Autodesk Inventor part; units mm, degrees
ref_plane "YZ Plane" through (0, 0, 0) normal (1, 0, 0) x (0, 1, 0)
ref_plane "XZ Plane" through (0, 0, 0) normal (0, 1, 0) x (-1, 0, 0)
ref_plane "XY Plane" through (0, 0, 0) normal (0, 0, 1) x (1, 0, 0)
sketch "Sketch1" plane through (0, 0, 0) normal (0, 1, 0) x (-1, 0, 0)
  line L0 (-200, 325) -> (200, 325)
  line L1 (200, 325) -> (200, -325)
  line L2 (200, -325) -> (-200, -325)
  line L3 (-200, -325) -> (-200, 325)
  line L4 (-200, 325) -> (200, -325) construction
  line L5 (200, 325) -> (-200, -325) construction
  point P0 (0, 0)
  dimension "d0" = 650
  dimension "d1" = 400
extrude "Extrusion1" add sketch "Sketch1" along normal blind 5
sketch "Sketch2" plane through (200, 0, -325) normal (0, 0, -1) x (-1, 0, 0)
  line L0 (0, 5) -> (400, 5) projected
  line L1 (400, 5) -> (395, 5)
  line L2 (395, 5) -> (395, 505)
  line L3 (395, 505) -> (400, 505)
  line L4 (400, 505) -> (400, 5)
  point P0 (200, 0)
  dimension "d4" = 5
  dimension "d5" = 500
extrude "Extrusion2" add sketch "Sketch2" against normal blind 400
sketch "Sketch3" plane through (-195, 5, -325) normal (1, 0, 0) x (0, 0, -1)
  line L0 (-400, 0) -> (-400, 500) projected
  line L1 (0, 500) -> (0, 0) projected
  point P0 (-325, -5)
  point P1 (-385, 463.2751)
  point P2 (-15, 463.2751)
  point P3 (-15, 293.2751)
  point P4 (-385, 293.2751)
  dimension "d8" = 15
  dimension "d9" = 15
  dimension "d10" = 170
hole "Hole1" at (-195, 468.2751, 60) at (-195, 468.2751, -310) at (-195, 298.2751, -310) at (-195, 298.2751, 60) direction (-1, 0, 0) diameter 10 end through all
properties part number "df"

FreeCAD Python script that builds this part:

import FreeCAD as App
import Part
import Sketcher

V = App.Vector
Q = App.Units.Quantity


def add_polygon(sketch, points):
    """Adds a closed chain of lines whose ends are joined by coincident constraints."""
    first, n = sketch.GeometryCount, len(points)
    for a, b in zip(points, points[1:] + points[:1]):
        sketch.addGeometry(Part.LineSegment(App.Vector(*a, 0), App.Vector(*b, 0)), False)
    for i in range(n):
        sketch.addConstraint(Sketcher.Constraint("Coincident", first + i, 2, first + (i + 1) % n, 1))

doc = App.newDocument("Part")
body = doc.addObject("PartDesign::Body", "Body")

# Sketch on XZ plane
sketch1 = doc.addObject("Sketcher::SketchObject", "Sketch")
body.addObject(sketch1)
sketch1.AttachmentSupport = (doc.XZ_Plane, [""])
sketch1.MapMode = "FlatFace"
add_polygon(sketch1, [(-200, 325), (200, 325), (200, -325), (-200, -325)])  # lines 0-3
sketch1.addConstraint(Sketcher.Constraint("Horizontal", 0))
sketch1.addConstraint(Sketcher.Constraint("Vertical", 1))
sketch1.addConstraint(Sketcher.Constraint("Horizontal", 2))
sketch1.addConstraint(Sketcher.Constraint("Vertical", 3))
sketch1.addConstraint(Sketcher.Constraint("Symmetric", 0, 2, 2, 2, -1, 1))
sketch1.addConstraint(Sketcher.Constraint("DistanceX", 0, 1, 0, 2, Q("400 mm")))
sketch1.addConstraint(Sketcher.Constraint("DistanceY", 1, 2, 1, 1, Q("650 mm")))
pad1 = doc.addObject("PartDesign::Pad", "Pad")
body.addObject(pad1)
pad1.Profile = sketch1
pad1.Length = 5
pad1.Reversed = True

# Sketch on XY plane
sketch2 = doc.addObject("Sketcher::SketchObject", "Sketch001")
body.addObject(sketch2)
sketch2.AttachmentSupport = (doc.XY_Plane, [""])
sketch2.MapMode = "FlatFace"
sketch2.AttachmentOffset = App.Placement(V(0, 0, -325), App.Rotation())
add_polygon(sketch2, [(-195, 505), (-195, 5), (-200, 5), (-200, 505)])  # lines 0-3
sketch2.addConstraint(Sketcher.Constraint("Vertical", 0))
sketch2.addConstraint(Sketcher.Constraint("Horizontal", 1))
sketch2.addConstraint(Sketcher.Constraint("Vertical", 2))
sketch2.addConstraint(Sketcher.Constraint("Horizontal", 3))
sketch2.addConstraint(Sketcher.Constraint("DistanceX", 1, 2, 1, 1, Q("5 mm")))
sketch2.addConstraint(Sketcher.Constraint("DistanceY", 0, 2, 0, 1, Q("500 mm")))
sketch2.addConstraint(Sketcher.Constraint("DistanceY", -1, 1, 0, 2, Q("5 mm")))
sketch2.addConstraint(Sketcher.Constraint("DistanceX", 0, 2, -1, 1, Q("195 mm")))
pad2 = doc.addObject("PartDesign::Pad", "Pad001")
body.addObject(pad2)
pad2.Profile = sketch2
pad2.Length = 400

# Sketch on YZ plane
sketch3 = doc.addObject("Sketcher::SketchObject", "Sketch002")
body.addObject(sketch3)
sketch3.AttachmentSupport = (doc.YZ_Plane, [""])
sketch3.MapMode = "FlatFace"
sketch3.AttachmentOffset = App.Placement(V(0, 0, -195), App.Rotation())
sketch3.addGeometry(Part.Circle(V(468.2751, 60, 0), V(0, 0, 1), 5), False)
sketch3.addGeometry(Part.Circle(V(468.2751, -310, 0), V(0, 0, 1), 5), False)
sketch3.addGeometry(Part.Circle(V(298.2751, -310, 0), V(0, 0, 1), 5), False)
sketch3.addGeometry(Part.Circle(V(298.2751, 60, 0), V(0, 0, 1), 5), False)
sketch3.addConstraint(Sketcher.Constraint("Equal", 0, 1))
sketch3.addConstraint(Sketcher.Constraint("Equal", 1, 2))
sketch3.addConstraint(Sketcher.Constraint("Equal", 2, 3))
sketch3.addConstraint(Sketcher.Constraint("Horizontal", 1, 3, 2, 3))
sketch3.addConstraint(Sketcher.Constraint("Horizontal", 0, 3, 3, 3))
sketch3.addConstraint(Sketcher.Constraint("Vertical", 0, 3, 1, 3))
sketch3.addConstraint(Sketcher.Constraint("Vertical", 2, 3, 3, 3))
sketch3.addConstraint(Sketcher.Constraint("Diameter", 0, Q("10 mm")))
sketch3.addConstraint(Sketcher.Constraint("DistanceY", -1, 1, 0, 3, Q("60 mm")))
sketch3.addConstraint(Sketcher.Constraint("DistanceY", 1, 3, -1, 1, Q("310 mm")))
sketch3.addConstraint(Sketcher.Constraint("DistanceX", 2, 3, 1, 3, Q("170 mm")))
sketch3.addConstraint(Sketcher.Constraint("DistanceX", -1, 1, 0, 3, Q("468.275 mm")))
doc.recompute()
hole = doc.addObject("PartDesign::Hole", "Hole")
body.addObject(hole)
hole.Profile = sketch3
hole.ThreadType = "None"
hole.Diameter = 10
hole.DepthType = "ThroughAll"

doc.recompute()
